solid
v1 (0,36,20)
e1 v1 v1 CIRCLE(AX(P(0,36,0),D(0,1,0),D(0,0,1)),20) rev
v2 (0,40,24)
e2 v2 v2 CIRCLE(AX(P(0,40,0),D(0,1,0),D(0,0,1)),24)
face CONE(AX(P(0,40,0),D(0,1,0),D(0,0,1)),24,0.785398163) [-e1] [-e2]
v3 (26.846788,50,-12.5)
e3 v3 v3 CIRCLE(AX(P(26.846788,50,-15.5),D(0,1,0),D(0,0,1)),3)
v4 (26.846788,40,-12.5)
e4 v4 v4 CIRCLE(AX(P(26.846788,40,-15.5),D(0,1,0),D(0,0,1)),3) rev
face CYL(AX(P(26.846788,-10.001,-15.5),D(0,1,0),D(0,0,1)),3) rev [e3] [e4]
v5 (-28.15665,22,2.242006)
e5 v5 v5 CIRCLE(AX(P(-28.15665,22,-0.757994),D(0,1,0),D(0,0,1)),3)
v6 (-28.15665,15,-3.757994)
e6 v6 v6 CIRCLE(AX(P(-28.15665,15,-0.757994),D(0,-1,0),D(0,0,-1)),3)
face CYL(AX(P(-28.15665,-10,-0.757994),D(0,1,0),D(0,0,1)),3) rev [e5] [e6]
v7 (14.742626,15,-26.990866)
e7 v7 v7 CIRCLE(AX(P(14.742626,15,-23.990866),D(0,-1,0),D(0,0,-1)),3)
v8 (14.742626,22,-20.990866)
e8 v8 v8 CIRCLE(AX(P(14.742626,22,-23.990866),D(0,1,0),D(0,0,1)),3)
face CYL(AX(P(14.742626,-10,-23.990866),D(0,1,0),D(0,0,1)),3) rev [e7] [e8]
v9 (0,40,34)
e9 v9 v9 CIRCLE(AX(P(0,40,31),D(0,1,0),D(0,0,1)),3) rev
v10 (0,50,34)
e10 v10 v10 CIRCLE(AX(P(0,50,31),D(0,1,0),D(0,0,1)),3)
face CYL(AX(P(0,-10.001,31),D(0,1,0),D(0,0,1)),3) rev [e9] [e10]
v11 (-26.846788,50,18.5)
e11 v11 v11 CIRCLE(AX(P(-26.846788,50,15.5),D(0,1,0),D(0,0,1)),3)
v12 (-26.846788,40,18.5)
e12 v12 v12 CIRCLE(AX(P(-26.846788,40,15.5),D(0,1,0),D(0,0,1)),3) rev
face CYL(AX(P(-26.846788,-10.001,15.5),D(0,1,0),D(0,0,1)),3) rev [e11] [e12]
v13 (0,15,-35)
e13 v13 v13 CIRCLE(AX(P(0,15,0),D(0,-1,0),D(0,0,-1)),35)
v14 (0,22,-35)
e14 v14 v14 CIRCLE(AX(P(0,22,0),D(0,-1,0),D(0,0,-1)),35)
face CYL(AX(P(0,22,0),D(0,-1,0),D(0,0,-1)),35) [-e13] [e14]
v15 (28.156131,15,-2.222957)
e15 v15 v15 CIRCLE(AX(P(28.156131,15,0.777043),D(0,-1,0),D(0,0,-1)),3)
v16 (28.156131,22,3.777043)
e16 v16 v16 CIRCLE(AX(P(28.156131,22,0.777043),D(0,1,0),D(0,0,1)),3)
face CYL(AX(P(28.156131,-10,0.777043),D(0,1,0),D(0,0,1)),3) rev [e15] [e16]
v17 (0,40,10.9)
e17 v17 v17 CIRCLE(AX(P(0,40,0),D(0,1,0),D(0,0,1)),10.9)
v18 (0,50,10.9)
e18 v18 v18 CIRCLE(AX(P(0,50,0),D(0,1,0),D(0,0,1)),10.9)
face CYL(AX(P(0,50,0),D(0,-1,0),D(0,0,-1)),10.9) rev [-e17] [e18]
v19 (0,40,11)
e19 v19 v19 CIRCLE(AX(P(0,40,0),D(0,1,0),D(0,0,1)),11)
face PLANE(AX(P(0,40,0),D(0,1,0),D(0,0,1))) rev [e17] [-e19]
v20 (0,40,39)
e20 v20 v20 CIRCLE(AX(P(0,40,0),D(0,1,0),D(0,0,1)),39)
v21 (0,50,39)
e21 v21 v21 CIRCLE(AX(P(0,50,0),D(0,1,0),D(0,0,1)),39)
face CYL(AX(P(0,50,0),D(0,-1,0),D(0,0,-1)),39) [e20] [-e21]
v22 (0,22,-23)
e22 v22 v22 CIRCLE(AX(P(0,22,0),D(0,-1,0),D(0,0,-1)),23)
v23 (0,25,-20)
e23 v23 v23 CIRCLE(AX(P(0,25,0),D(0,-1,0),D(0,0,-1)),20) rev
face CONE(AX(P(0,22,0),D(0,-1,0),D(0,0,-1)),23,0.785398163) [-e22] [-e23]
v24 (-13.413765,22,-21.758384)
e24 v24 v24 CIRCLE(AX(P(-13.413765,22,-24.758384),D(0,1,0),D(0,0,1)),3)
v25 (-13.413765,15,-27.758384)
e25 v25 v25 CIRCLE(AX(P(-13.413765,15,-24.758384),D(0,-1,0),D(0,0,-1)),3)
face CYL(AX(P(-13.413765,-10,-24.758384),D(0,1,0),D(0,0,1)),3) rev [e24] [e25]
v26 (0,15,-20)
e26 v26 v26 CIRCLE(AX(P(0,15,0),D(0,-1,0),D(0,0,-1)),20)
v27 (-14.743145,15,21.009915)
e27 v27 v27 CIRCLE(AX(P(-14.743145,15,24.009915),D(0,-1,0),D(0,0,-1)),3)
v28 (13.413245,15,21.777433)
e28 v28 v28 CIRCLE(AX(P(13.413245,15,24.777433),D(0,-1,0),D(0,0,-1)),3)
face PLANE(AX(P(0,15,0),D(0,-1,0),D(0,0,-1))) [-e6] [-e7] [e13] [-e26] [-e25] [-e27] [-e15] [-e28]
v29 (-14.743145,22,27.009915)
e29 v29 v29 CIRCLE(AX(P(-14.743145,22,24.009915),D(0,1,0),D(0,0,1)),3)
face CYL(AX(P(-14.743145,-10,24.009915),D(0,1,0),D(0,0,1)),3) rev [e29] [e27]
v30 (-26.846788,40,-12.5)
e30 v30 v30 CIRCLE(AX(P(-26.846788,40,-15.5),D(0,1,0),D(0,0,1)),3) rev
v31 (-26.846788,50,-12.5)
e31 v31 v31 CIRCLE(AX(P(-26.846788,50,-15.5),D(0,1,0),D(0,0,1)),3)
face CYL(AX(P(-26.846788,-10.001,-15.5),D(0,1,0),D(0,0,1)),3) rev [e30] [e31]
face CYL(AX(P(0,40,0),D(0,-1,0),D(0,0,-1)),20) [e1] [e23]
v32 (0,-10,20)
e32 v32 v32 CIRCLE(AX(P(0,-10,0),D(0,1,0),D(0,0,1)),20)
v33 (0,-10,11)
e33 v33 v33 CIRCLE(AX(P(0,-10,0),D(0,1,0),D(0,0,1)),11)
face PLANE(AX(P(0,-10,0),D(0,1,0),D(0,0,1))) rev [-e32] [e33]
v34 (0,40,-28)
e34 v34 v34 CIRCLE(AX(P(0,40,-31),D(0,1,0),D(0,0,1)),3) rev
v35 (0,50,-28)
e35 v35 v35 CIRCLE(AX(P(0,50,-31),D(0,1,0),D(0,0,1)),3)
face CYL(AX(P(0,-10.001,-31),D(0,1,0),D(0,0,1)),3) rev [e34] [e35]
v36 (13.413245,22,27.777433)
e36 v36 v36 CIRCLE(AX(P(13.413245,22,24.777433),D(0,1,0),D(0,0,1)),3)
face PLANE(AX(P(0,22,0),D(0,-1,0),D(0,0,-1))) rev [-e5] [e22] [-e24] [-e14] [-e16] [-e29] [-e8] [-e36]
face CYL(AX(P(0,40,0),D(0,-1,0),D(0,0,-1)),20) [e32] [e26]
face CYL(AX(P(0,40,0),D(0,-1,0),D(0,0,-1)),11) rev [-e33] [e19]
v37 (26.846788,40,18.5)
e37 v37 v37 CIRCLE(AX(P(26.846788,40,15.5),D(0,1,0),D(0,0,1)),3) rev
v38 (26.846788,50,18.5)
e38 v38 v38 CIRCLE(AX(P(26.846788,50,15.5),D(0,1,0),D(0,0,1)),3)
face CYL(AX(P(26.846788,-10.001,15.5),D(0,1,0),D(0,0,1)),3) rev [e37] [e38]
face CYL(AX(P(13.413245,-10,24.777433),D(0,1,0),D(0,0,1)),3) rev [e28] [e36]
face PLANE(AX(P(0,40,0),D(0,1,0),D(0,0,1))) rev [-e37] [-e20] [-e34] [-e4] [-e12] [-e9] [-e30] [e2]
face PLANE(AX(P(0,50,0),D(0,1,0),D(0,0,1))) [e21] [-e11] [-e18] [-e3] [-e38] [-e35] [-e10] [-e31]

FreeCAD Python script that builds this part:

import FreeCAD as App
import Part
import Sketcher
from FreeCAD import Vector
Q = App.Units.Quantity


def edges_at(feature, points):
    """Names of the edges that pass closest to the given points."""
    edges = feature.Shape.Edges
    near = lambda p: min(range(len(edges)), key=lambda i: edges[i].distToShape(Part.Vertex(*p))[0])
    return sorted({f"Edge{near(p) + 1}" for p in points})

doc = App.newDocument("Part")
params = doc.addObject("Spreadsheet::Sheet", "Params")
for row, (alias, value) in enumerate([
    ("sketch1_diameter", "40 mm"),
    ("sketch1_diameter2", "22 mm"),
    ("pad1_length", "50 mm"),
    ("sketch2_diameter", "78 mm"),
    ("sketch2_diameter2", "21.8 mm"),
    ("pad2_length", "10 mm"),
    ("chamfer_size", "4 mm"),
    ("sketch3_diameter", "70 mm"),
    ("sketch3_diameter2", "34 mm"),
    ("pad3_length", "7 mm"),
    ("chamfer2_size", "3 mm"),
    ("sketch4_diameter", "6 mm"),
    ("sketch5_diameter", "6 mm"),
    ("sketch6_diameter", "6 mm"),
    ("sketch7_diameter", "6 mm"),
    ("sketch8_diameter", "6 mm"),
    ("sketch9_diameter", "6 mm"),
    ("sketch10_diameter", "6 mm"),
], start=1):
    params.set(f"A{row}", alias)
    params.set(f"B{row}", "=" + value)
    params.setAlias(f"B{row}", alias)

body = doc.addObject("PartDesign::Body", "Body")

# Sketch on XZ plane
sketch1 = doc.addObject("Sketcher::SketchObject", "Sketch")
body.addObject(sketch1)
sketch1.AttachmentSupport = (doc.XZ_Plane, [""])
sketch1.MapMode = "FlatFace"
sketch1.AttachmentOffset = App.Placement(Vector(0, 0, 10), App.Rotation())
sketch1.addGeometry([
    Part.Circle(Vector(0, 0, 0), Vector(0, 0, 1), 20),
    Part.Circle(Vector(0, 0, 0), Vector(0, 0, 1), 11),
], False)
sketch1.addConstraint([
    Sketcher.Constraint("Coincident", 0, 3, -1, 1),
    Sketcher.Constraint("Coincident", 1, 3, -1, 1),
    Sketcher.Constraint("Diameter", 0, Q("40 mm")),
    Sketcher.Constraint("Diameter", 1, Q("22 mm")),
])
sketch1.setExpression("Constraints[2]", "Params.sketch1_diameter")
sketch1.setExpression("Constraints[3]", "Params.sketch1_diameter2")
pad1 = doc.addObject("PartDesign::Pad", "Pad")
body.addObject(pad1)
pad1.Profile = sketch1
pad1.setExpression("Length", "Params.pad1_length")
pad1.Reversed = True

# Sketch on XZ plane
sketch2 = doc.addObject("Sketcher::SketchObject", "Sketch001")
body.addObject(sketch2)
sketch2.AttachmentSupport = (doc.XZ_Plane, [""])
sketch2.MapMode = "FlatFace"
sketch2.AttachmentOffset = App.Placement(Vector(0, 0, -40), App.Rotation())
sketch2.addGeometry([
    Part.Circle(Vector(0, 0, 0), Vector(0, 0, 1), 39),
    Part.Circle(Vector(0, 0, 0), Vector(0, 0, 1), 10.9),
], False)
sketch2.addConstraint([
    Sketcher.Constraint("Coincident", 0, 3, -1, 1),
    Sketcher.Constraint("Coincident", 1, 3, -1, 1),
    Sketcher.Constraint("Diameter", 0, Q("78 mm")),
    Sketcher.Constraint("Diameter", 1, Q("21.8 mm")),
])
sketch2.setExpression("Constraints[2]", "Params.sketch2_diameter")
sketch2.setExpression("Constraints[3]", "Params.sketch2_diameter2")
pad2 = doc.addObject("PartDesign::Pad", "Pad001")
body.addObject(pad2)
pad2.Profile = sketch2
pad2.setExpression("Length", "Params.pad2_length")
pad2.Reversed = True
doc.recompute()

chamfer = doc.addObject("PartDesign::Chamfer", "Chamfer")
body.addObject(chamfer)
chamfer.Base = (pad2, edges_at(pad2, [(0, 40, -20)]))
chamfer.setExpression("Size", "Params.chamfer_size")

# Sketch on XZ plane
sketch3 = doc.addObject("Sketcher::SketchObject", "Sketch002")
body.addObject(sketch3)
sketch3.AttachmentSupport = (doc.XZ_Plane, [""])
sketch3.MapMode = "FlatFace"
sketch3.AttachmentOffset = App.Placement(Vector(0, 0, -15), App.Rotation())
sketch3.addGeometry([
    Part.Circle(Vector(0, 0, 0), Vector(0, 0, 1), 35),
    Part.Circle(Vector(0, 0, 0), Vector(0, 0, 1), 17),
], False)
sketch3.addConstraint([
    Sketcher.Constraint("Coincident", 0, 3, -1, 1),
    Sketcher.Constraint("Coincident", 1, 3, -1, 1),
    Sketcher.Constraint("Diameter", 0, Q("70 mm")),
    Sketcher.Constraint("Diameter", 1, Q("34 mm")),
])
sketch3.setExpression("Constraints[2]", "Params.sketch3_diameter")
sketch3.setExpression("Constraints[3]", "Params.sketch3_diameter2")
pad3 = doc.addObject("PartDesign::Pad", "Pad002")
body.addObject(pad3)
pad3.Profile = sketch3
pad3.setExpression("Length", "Params.pad3_length")
pad3.Reversed = True
doc.recompute()

chamfer2 = doc.addObject("PartDesign::Chamfer", "Chamfer001")
body.addObject(chamfer2)
chamfer2.Base = (pad3, edges_at(pad3, [(0, 22, -20)]))
chamfer2.setExpression("Size", "Params.chamfer2_size")

# Sketch on XZ plane
sketch4 = doc.addObject("Sketcher::SketchObject", "Sketch003")
body.addObject(sketch4)
sketch4.AttachmentSupport = (doc.XZ_Plane, [""])
sketch4.MapMode = "FlatFace"
sketch4.AttachmentOffset = App.Placement(Vector(0, 0, -22), App.Rotation())
sketch4.addGeometry([
    Part.Circle(Vector(-13.413765, -24.758384, 0), Vector(0, 0, 1), 3),  # 0
    Part.Circle(Vector(14.742626, -23.990866, 0), Vector(0, 0, 1), 3),  # 1
    Part.Circle(Vector(28.156131, 0.777043, 0), Vector(0, 0, 1), 3),  # 2
    Part.Circle(Vector(13.413245, 24.777433, 0), Vector(0, 0, 1), 3),  # 3
    Part.Circle(Vector(-14.743145, 24.009915, 0), Vector(0, 0, 1), 3),  # 4
    Part.Circle(Vector(-28.15665, -0.757994, 0), Vector(0, 0, 1), 3),  # 5
], False)
sketch4.addConstraint([
    Sketcher.Constraint("Equal", 0, 1),
    Sketcher.Constraint("Equal", 1, 2),
    Sketcher.Constraint("Equal", 2, 3),
    Sketcher.Constraint("Equal", 3, 4),
    Sketcher.Constraint("Equal", 4, 5),
    Sketcher.Constraint("Diameter", 0, Q("6 mm")),
    Sketcher.Constraint("DistanceY", 1, 3, 3, 3, Q("48.768299 mm")),
    Sketcher.Constraint("DistanceY", 0, 3, 4, 3, Q("48.768299 mm")),
    Sketcher.Constraint("DistanceX", -1, 1, 2, 3, Q("28.156131 mm")),
    Sketcher.Constraint("DistanceX", 5, 3, -1, 1, Q("28.15665 mm")),
    Sketcher.Constraint("DistanceX", 0, 3, 1, 3, Q("28.156391 mm")),
    Sketcher.Constraint("DistanceY", 0, 3, 1, 3, Q("0.767518 mm")),
    Sketcher.Constraint("DistanceY", 1, 3, 2, 3, Q("24.767909 mm")),
    Sketcher.Constraint("DistanceX", 3, 3, 1, 3, Q("1.329381 mm")),
    Sketcher.Constraint("DistanceX", 4, 3, 3, 3, Q("28.156391 mm")),
    Sketcher.Constraint("DistanceY", 5, 3, 4, 3, Q("24.767909 mm")),
    Sketcher.Constraint("DistanceX", 0, 3, -1, 1, Q("13.413765 mm")),
    Sketcher.Constraint("DistanceY", 0, 3, -1, 1, Q("24.758384 mm")),
])
sketch4.setExpression("Constraints[5]", "Params.sketch4_diameter")
pocket1 = doc.addObject("PartDesign::Pocket", "Pocket")
body.addObject(pocket1)
pocket1.Profile = sketch4
pocket1.Type = "ThroughAll"
pocket1.Reversed = True

# Sketch on XZ plane
sketch5 = doc.addObject("Sketcher::SketchObject", "Sketch004")
body.addObject(sketch5)
sketch5.AttachmentSupport = (doc.XZ_Plane, [""])
sketch5.MapMode = "FlatFace"
sketch5.AttachmentOffset = App.Placement(Vector(0, 0, -50), App.Rotation())
sketch5.addGeometry(Part.Circle(Vector(0, -31, 0), Vector(0, 0, 1), 3), False)
sketch5.addConstraint([
    Sketcher.Constraint("PointOnObject", 0, 3, -2),
    Sketcher.Constraint("Diameter", 0, Q("6 mm")),
    Sketcher.Constraint("DistanceY", 0, 3, -1, 1, Q("31 mm")),
])
sketch5.setExpression("Constraints[1]", "Params.sketch5_diameter")
pocket2 = doc.addObject("PartDesign::Pocket", "Pocket001")
body.addObject(pocket2)
pocket2.Profile = sketch5
pocket2.Type = "UpToFirst"
pocket2.Reversed = True

# Sketch on XZ plane
sketch6 = doc.addObject("Sketcher::SketchObject", "Sketch005")
body.addObject(sketch6)
sketch6.AttachmentSupport = (doc.XZ_Plane, [""])
sketch6.MapMode = "FlatFace"
sketch6.AttachmentOffset = App.Placement(Vector(0, 0, -50), App.Rotation())
sketch6.addGeometry(Part.Circle(Vector(26.846788, -15.5, 0), Vector(0, 0, 1), 3), False)
sketch6.addConstraint([
    Sketcher.Constraint("Diameter", 0, Q("6 mm")),
    Sketcher.Constraint("DistanceY", 0, 3, -1, 1, Q("15.5 mm")),
    Sketcher.Constraint("DistanceX", -1, 1, 0, 3, Q("26.846788 mm")),
])
sketch6.setExpression("Constraints[0]", "Params.sketch6_diameter")
pocket3 = doc.addObject("PartDesign::Pocket", "Pocket002")
body.addObject(pocket3)
pocket3.Profile = sketch6
pocket3.Type = "UpToFirst"
pocket3.Reversed = True

# Sketch on XZ plane
sketch7 = doc.addObject("Sketcher::SketchObject", "Sketch006")
body.addObject(sketch7)
sketch7.AttachmentSupport = (doc.XZ_Plane, [""])
sketch7.MapMode = "FlatFace"
sketch7.AttachmentOffset = App.Placement(Vector(0, 0, -50), App.Rotation())
sketch7.addGeometry(Part.Circle(Vector(26.846788, 15.5, 0), Vector(0, 0, 1), 3), False)
sketch7.addConstraint([
    Sketcher.Constraint("Diameter", 0, Q("6 mm")),
    Sketcher.Constraint("DistanceY", -1, 1, 0, 3, Q("15.5 mm")),
    Sketcher.Constraint("DistanceX", -1, 1, 0, 3, Q("26.846788 mm")),
])
sketch7.setExpression("Constraints[0]", "Params.sketch7_diameter")
pocket4 = doc.addObject("PartDesign::Pocket", "Pocket003")
body.addObject(pocket4)
pocket4.Profile = sketch7
pocket4.Type = "UpToFirst"
pocket4.Reversed = True

# Sketch on XZ plane
sketch8 = doc.addObject("Sketcher::SketchObject", "Sketch007")
body.addObject(sketch8)
sketch8.AttachmentSupport = (doc.XZ_Plane, [""])
sketch8.MapMode = "FlatFace"
sketch8.AttachmentOffset = App.Placement(Vector(0, 0, -50), App.Rotation())
sketch8.addGeometry(Part.Circle(Vector(0, 31, 0), Vector(0, 0, 1), 3), False)
sketch8.addConstraint([
    Sketcher.Constraint("PointOnObject", 0, 3, -2),
    Sketcher.Constraint("Diameter", 0, Q("6 mm")),
    Sketcher.Constraint("DistanceY", -1, 1, 0, 3, Q("31 mm")),
])
sketch8.setExpression("Constraints[1]", "Params.sketch8_diameter")
pocket5 = doc.addObject("PartDesign::Pocket", "Pocket004")
body.addObject(pocket5)
pocket5.Profile = sketch8
pocket5.Type = "UpToFirst"
pocket5.Reversed = True

# Sketch on XZ plane
sketch9 = doc.addObject("Sketcher::SketchObject", "Sketch008")
body.addObject(sketch9)
sketch9.AttachmentSupport = (doc.XZ_Plane, [""])
sketch9.MapMode = "FlatFace"
sketch9.AttachmentOffset = App.Placement(Vector(0, 0, -50), App.Rotation())
sketch9.addGeometry(Part.Circle(Vector(-26.846788, 15.5, 0), Vector(0, 0, 1), 3), False)
sketch9.addConstraint([
    Sketcher.Constraint("Diameter", 0, Q("6 mm")),
    Sketcher.Constraint("DistanceY", -1, 1, 0, 3, Q("15.5 mm")),
    Sketcher.Constraint("DistanceX", 0, 3, -1, 1, Q("26.846788 mm")),
])
sketch9.setExpression("Constraints[0]", "Params.sketch9_diameter")
pocket6 = doc.addObject("PartDesign::Pocket", "Pocket005")
body.addObject(pocket6)
pocket6.Profile = sketch9
pocket6.Type = "UpToFirst"
pocket6.Reversed = True

# Sketch on XZ plane
sketch10 = doc.addObject("Sketcher::SketchObject", "Sketch009")
body.addObject(sketch10)
sketch10.AttachmentSupport = (doc.XZ_Plane, [""])
sketch10.MapMode = "FlatFace"
sketch10.AttachmentOffset = App.Placement(Vector(0, 0, -50), App.Rotation())
sketch10.addGeometry(Part.Circle(Vector(-26.846788, -15.5, 0), Vector(0, 0, 1), 3), False)
sketch10.addConstraint([
    Sketcher.Constraint("Diameter", 0, Q("6 mm")),
    Sketcher.Constraint("DistanceY", 0, 3, -1, 1, Q("15.5 mm")),
    Sketcher.Constraint("DistanceX", 0, 3, -1, 1, Q("26.846788 mm")),
])
sketch10.setExpression("Constraints[0]", "Params.sketch10_diameter")
pocket7 = doc.addObject("PartDesign::Pocket", "Pocket006")
body.addObject(pocket7)
pocket7.Profile = sketch10
pocket7.Type = "UpToFirst"
pocket7.Reversed = True

doc.recompute()
